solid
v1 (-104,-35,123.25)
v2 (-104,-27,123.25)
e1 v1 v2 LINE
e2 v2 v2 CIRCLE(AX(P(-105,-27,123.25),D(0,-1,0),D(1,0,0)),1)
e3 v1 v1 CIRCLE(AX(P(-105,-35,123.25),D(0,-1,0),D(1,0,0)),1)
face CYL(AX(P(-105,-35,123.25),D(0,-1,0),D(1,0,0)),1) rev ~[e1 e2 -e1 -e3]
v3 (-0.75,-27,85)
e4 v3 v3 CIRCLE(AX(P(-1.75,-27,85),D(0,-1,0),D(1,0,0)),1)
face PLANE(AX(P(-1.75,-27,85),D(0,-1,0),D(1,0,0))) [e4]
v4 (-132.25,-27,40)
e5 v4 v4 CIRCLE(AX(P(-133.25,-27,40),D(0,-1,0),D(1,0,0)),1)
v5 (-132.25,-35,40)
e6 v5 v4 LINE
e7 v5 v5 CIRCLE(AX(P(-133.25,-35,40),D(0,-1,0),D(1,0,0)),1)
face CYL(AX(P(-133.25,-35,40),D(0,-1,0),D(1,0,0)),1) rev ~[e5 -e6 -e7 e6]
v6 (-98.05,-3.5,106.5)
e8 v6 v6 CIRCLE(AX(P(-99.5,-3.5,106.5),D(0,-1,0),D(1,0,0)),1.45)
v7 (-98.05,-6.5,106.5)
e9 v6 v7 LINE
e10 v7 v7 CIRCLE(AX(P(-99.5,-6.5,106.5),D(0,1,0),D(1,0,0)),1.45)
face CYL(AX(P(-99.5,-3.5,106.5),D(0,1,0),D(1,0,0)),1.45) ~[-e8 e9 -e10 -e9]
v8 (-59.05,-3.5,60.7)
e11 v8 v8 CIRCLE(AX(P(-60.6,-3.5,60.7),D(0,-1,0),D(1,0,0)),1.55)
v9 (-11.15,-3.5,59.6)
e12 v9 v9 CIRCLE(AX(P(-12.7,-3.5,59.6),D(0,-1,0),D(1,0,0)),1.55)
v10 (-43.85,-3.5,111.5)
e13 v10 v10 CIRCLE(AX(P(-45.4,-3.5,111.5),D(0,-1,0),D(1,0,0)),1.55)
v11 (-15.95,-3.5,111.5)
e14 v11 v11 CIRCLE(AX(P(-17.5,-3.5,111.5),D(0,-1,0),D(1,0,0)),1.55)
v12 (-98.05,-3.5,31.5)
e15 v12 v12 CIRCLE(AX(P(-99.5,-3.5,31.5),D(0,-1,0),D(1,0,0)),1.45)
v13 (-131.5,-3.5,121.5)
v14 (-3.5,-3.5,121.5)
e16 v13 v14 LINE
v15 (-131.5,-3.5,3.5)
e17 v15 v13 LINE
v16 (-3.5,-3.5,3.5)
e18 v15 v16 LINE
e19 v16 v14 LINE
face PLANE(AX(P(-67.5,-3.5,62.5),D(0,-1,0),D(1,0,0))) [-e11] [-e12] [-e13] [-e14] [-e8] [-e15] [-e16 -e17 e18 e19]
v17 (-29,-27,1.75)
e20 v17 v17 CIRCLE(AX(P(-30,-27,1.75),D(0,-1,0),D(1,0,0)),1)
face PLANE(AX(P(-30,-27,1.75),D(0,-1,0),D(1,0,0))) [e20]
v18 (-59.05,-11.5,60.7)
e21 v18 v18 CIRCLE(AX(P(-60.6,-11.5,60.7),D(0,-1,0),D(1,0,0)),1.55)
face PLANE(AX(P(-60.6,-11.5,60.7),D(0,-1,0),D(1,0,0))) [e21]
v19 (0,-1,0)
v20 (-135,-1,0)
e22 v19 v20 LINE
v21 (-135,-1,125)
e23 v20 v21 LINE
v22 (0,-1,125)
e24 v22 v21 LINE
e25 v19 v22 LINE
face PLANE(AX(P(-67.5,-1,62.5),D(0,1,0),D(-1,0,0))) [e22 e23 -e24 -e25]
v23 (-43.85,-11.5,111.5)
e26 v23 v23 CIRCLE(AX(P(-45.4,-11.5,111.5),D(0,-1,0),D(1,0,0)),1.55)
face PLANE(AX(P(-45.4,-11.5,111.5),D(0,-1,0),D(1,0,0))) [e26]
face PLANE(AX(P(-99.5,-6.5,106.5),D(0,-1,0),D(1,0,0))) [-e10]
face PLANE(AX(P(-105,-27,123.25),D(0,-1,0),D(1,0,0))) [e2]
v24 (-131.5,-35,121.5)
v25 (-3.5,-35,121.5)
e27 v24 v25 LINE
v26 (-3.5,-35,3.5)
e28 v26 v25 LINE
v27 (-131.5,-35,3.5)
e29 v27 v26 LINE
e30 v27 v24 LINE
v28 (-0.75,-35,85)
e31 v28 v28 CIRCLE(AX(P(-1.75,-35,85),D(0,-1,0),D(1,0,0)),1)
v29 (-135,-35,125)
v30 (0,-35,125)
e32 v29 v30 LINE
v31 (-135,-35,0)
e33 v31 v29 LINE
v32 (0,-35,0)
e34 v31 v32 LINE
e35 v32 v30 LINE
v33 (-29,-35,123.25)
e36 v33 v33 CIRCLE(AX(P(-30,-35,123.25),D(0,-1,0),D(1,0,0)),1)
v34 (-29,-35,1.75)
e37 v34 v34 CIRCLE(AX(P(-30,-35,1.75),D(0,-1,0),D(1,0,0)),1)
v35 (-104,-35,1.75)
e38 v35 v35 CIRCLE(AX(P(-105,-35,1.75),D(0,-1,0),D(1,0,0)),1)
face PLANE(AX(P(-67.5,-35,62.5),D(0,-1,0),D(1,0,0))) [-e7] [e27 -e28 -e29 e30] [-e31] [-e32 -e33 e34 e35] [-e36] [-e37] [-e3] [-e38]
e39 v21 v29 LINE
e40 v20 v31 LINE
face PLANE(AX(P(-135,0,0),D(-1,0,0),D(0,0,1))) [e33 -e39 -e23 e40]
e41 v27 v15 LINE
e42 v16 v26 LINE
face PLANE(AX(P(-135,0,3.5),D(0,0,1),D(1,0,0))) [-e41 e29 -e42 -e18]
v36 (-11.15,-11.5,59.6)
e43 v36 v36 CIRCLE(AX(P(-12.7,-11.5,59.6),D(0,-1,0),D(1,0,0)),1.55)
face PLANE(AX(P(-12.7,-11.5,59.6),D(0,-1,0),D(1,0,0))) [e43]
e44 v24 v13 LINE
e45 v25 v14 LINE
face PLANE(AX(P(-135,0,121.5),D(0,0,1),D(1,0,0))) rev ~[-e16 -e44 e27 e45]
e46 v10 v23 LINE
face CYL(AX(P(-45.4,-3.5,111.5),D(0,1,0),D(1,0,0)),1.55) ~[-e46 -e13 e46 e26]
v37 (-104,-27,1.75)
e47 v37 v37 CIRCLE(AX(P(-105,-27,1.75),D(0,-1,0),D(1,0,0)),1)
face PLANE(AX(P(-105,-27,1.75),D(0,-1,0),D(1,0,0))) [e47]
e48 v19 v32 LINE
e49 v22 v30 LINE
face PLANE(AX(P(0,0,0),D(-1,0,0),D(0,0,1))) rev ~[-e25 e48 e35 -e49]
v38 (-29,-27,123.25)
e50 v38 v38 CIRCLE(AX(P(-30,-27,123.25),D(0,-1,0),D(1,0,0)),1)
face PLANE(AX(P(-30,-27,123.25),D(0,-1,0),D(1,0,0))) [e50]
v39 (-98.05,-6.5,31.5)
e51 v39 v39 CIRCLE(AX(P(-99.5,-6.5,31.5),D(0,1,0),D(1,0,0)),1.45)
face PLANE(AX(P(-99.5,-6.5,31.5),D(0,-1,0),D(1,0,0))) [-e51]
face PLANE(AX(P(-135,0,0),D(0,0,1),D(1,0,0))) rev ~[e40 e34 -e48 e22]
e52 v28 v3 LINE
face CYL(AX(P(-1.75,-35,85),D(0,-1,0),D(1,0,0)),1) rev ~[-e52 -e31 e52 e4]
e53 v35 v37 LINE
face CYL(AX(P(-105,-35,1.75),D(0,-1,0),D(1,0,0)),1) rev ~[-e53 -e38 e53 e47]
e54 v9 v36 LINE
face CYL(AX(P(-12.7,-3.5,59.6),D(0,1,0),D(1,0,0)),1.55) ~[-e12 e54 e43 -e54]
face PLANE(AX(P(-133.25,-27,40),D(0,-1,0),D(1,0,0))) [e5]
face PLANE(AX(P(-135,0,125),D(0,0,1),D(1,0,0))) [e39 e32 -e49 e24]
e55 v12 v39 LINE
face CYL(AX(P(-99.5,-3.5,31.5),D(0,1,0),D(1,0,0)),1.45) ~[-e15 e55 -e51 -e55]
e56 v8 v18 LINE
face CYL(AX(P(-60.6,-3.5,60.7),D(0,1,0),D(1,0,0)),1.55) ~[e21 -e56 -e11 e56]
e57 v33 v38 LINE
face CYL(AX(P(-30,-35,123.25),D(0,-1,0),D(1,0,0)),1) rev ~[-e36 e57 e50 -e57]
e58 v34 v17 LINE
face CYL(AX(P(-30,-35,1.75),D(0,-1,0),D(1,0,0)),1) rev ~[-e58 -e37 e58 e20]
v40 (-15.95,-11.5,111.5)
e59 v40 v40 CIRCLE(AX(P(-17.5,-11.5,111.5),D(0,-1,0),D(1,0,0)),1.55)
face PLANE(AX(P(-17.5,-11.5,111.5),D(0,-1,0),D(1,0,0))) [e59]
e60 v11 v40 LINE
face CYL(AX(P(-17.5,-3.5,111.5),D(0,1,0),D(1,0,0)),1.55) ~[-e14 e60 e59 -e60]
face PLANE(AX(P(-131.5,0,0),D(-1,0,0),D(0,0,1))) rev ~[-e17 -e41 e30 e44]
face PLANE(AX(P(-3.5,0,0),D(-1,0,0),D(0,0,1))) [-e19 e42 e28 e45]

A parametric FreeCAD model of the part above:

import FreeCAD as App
import Part
import Sketcher
from FreeCAD import Vector


def faces_at(feature, points):
    """Names of the faces that lie closest to the given points."""
    faces = feature.Shape.Faces
    near = lambda p: min(range(len(faces)), key=lambda i: faces[i].distToShape(Part.Vertex(*p))[0])
    return sorted({f"Face{near(p) + 1}" for p in points})


def add_polygon(sketch, points):
    """Adds a closed chain of lines whose ends are joined by coincident constraints."""
    first, n = sketch.GeometryCount, len(points)
    for a, b in zip(points, points[1:] + points[:1]):
        sketch.addGeometry(Part.LineSegment(App.Vector(*a, 0), App.Vector(*b, 0)), False)
    for i in range(n):
        sketch.addConstraint(Sketcher.Constraint("Coincident", first + i, 2, first + (i + 1) % n, 1))

doc = App.newDocument("Part")
params = doc.addObject("Spreadsheet::Sheet", "Params")
for row, (alias, value) in enumerate([
    ("sketch1_width", "135 mm"),
    ("sketch1_height", "125 mm"),
    ("pad1_length", "35 mm"),
    ("thickness_wall", "3.5 mm"),
    ("sketch2_diameter", "2.9 mm"),
    ("sketch2_diameter2", "3.1 mm"),
    ("pad2_length", "8 mm"),
    ("sketch3_diameter", "2 mm"),
    ("pocket1_length", "8 mm"),
    ("sketch4_width", "135 mm"),
    ("sketch4_height", "125 mm"),
    ("pocket2_length", "1 mm"),
    ("pocket3_length", "5 mm"),
    ("pocket4_length", "5 mm"),
], start=1):
    params.set(f"A{row}", alias)
    params.set(f"B{row}", "=" + value)
    params.setAlias(f"B{row}", alias)

body = doc.addObject("PartDesign::Body", "Body")

# Sketch on XZ plane
sketch1 = body.newObject("Sketcher::SketchObject", "Sketch")
sketch1.AttachmentSupport = (doc.getObject("XZ_Plane"), [""])
sketch1.MapMode = "FlatFace"
add_polygon(sketch1, [(-135, 125), (-135, 0), (0, 0), (0, 125)])  # lines 0-3
sketch1.addConstraint(Sketcher.Constraint("Vertical", 0))
sketch1.addConstraint(Sketcher.Constraint("Horizontal", 1))
sketch1.addConstraint(Sketcher.Constraint("Vertical", 2))
sketch1.addConstraint(Sketcher.Constraint("Horizontal", 3))
sketch1.addConstraint(Sketcher.Constraint("Coincident", 1, 2, -1, 1))
sketch1.addConstraint(Sketcher.Constraint("DistanceX", 1, 1, 1, 2, 135.0))
sketch1.addConstraint(Sketcher.Constraint("DistanceY", 0, 2, 0, 1, 125.0))
sketch1.setExpression("Constraints[9]", "Params.sketch1_width")
sketch1.setExpression("Constraints[10]", "Params.sketch1_height")
pad1 = body.newObject("PartDesign::Pad", "Pad")
pad1.Profile = sketch1
pad1.setExpression("Length", "Params.pad1_length")
doc.recompute()

thickness = body.newObject("PartDesign::Thickness", "Thickness")
thickness.Base = (pad1, faces_at(pad1, [(-67.5, -35, 62.5)]))
thickness.setExpression("Value", "Params.thickness_wall")
thickness.Reversed = True
thickness.Join = "Arc"

# Sketch on XZ plane
sketch2 = body.newObject("Sketcher::SketchObject", "Sketch001")
sketch2.AttachmentSupport = (doc.getObject("XZ_Plane"), [""])
sketch2.MapMode = "FlatFace"
sketch2.AttachmentOffset = App.Placement(Vector(0, 0, 3.5), App.Rotation())
sketch2.addGeometry(Part.Circle(Vector(-99.5, 106.5, 0), Vector(0, 0, 1), 1.4), False)
sketch2.addGeometry(Part.Circle(Vector(-99.5, 31.5, 0), Vector(0, 0, 1), 1.4), False)
sketch2.addGeometry(Part.Circle(Vector(-45.4, 111.5, 0), Vector(0, 0, 1), 1.6), False)
sketch2.addGeometry(Part.Circle(Vector(-17.5, 111.5, 0), Vector(0, 0, 1), 1.6), False)
sketch2.addGeometry(Part.Circle(Vector(-12.7, 59.6, 0), Vector(0, 0, 1), 1.6), False)
sketch2.addGeometry(Part.Circle(Vector(-60.6, 60.7, 0), Vector(0, 0, 1), 1.6), False)
sketch2.addConstraint(Sketcher.Constraint("Equal", 0, 1))
sketch2.addConstraint(Sketcher.Constraint("Equal", 2, 3))
sketch2.addConstraint(Sketcher.Constraint("Equal", 3, 4))
sketch2.addConstraint(Sketcher.Constraint("Equal", 4, 5))
sketch2.addConstraint(Sketcher.Constraint("Horizontal", 2, 3, 3, 3))
sketch2.addConstraint(Sketcher.Constraint("Vertical", 0, 3, 1, 3))
sketch2.addConstraint(Sketcher.Constraint("Diameter", 0, 2.9))
sketch2.addConstraint(Sketcher.Constraint("Diameter", 2, 3.1))
sketch2.addConstraint(Sketcher.Constraint("DistanceY", 1, 3, 0, 3, 75.0))
sketch2.addConstraint(Sketcher.Constraint("DistanceY", 0, 3, 2, 3, 5.0))
sketch2.addConstraint(Sketcher.Constraint("DistanceX", 0, 3, 3, 3, 82.0))
sketch2.addConstraint(Sketcher.Constraint("DistanceX", 0, 3, -1, 1, 99.5))
sketch2.addConstraint(Sketcher.Constraint("DistanceY", -1, 1, 0, 3, 106.5))
sketch2.addConstraint(Sketcher.Constraint("DistanceX", 2, 3, -1, 1, 45.4))
sketch2.addConstraint(Sketcher.Constraint("DistanceX", 4, 3, -1, 1, 12.7))
sketch2.addConstraint(Sketcher.Constraint("DistanceY", -1, 1, 4, 3, 59.6))
sketch2.addConstraint(Sketcher.Constraint("DistanceX", 5, 3, -1, 1, 60.6))
sketch2.addConstraint(Sketcher.Constraint("DistanceY", -1, 1, 5, 3, 60.7))
sketch2.setExpression("Constraints[6]", "Params.sketch2_diameter")
sketch2.setExpression("Constraints[7]", "Params.sketch2_diameter2")
pad2 = body.newObject("PartDesign::Pad", "Pad001")
pad2.Profile = sketch2
pad2.setExpression("Length", "Params.pad2_length")

# Sketch on XZ plane
sketch3 = body.newObject("Sketcher::SketchObject", "Sketch002")
sketch3.AttachmentSupport = (doc.getObject("XZ_Plane"), [""])
sketch3.MapMode = "FlatFace"
sketch3.AttachmentOffset = App.Placement(Vector(0, 0, 35), App.Rotation())
sketch3.addGeometry(Part.Circle(Vector(-30, 123.2, 0), Vector(0, 0, 1), 1), False)
sketch3.addGeometry(Part.Circle(Vector(-1.8, 85, 0), Vector(0, 0, 1), 1), False)
sketch3.addGeometry(Part.Circle(Vector(-30, 1.8, 0), Vector(0, 0, 1), 1), False)
sketch3.addGeometry(Part.Circle(Vector(-105, 1.8, 0), Vector(0, 0, 1), 1), False)
sketch3.addGeometry(Part.Circle(Vector(-133.2, 40, 0), Vector(0, 0, 1), 1), False)
sketch3.addGeometry(Part.Circle(Vector(-105, 123.2, 0), Vector(0, 0, 1), 1), False)
sketch3.addConstraint(Sketcher.Constraint("Equal", 0, 1))
sketch3.addConstraint(Sketcher.Constraint("Equal", 1, 2))
sketch3.addConstraint(Sketcher.Constraint("Equal", 2, 3))
sketch3.addConstraint(Sketcher.Constraint("Equal", 3, 4))
sketch3.addConstraint(Sketcher.Constraint("Equal", 4, 5))
sketch3.addConstraint(Sketcher.Constraint("Horizontal", 2, 3, 3, 3))
sketch3.addConstraint(Sketcher.Constraint("Horizontal", 0, 3, 5, 3))
sketch3.addConstraint(Sketcher.Constraint("Vertical", 0, 3, 2, 3))
sketch3.addConstraint(Sketcher.Constraint("Vertical", 3, 3, 5, 3))
sketch3.addConstraint(Sketcher.Constraint("Diameter", 0, 2.0))
sketch3.addConstraint(Sketcher.Constraint("DistanceX", 0, 3, -1, 1, 30.0))
sketch3.addConstraint(Sketcher.Constraint("DistanceY", -1, 1, 1, 3, 85.0))
sketch3.addConstraint(Sketcher.Constraint("DistanceX", 3, 3, -1, 1, 105.0))
sketch3.addConstraint(Sketcher.Constraint("DistanceY", -1, 1, 4, 3, 40.0))
sketch3.addConstraint(Sketcher.Constraint("DistanceY", 2, 3, 0, 3, 121.5))
sketch3.addConstraint(Sketcher.Constraint("DistanceX", 4, 3, 1, 3, 131.5))
sketch3.addConstraint(Sketcher.Constraint("DistanceY", -1, 1, 0, 3, 123.25))
sketch3.addConstraint(Sketcher.Constraint("DistanceX", 1, 3, -1, 1, 1.75))
sketch3.setExpression("Constraints[9]", "Params.sketch3_diameter")
pocket1 = body.newObject("PartDesign::Pocket", "Pocket")
pocket1.Profile = sketch3
pocket1.setExpression("Length", "Params.pocket1_length")

# Sketch on XZ plane
sketch4 = body.newObject("Sketcher::SketchObject", "Sketch003")
sketch4.AttachmentSupport = (doc.getObject("XZ_Plane"), [""])
sketch4.MapMode = "FlatFace"
add_polygon(sketch4, [(0, 125), (0, 0), (-135, 0), (-135, 125)])  # lines 0-3
sketch4.addConstraint(Sketcher.Constraint("Vertical", 0))
sketch4.addConstraint(Sketcher.Constraint("Horizontal", 1))
sketch4.addConstraint(Sketcher.Constraint("Vertical", 2))
sketch4.addConstraint(Sketcher.Constraint("Horizontal", 3))
sketch4.addConstraint(Sketcher.Constraint("Coincident", 0, 2, -1, 1))
sketch4.addConstraint(Sketcher.Constraint("DistanceX", 1, 2, 1, 1, 135.0))
sketch4.addConstraint(Sketcher.Constraint("DistanceY", 0, 2, 0, 1, 125.0))
sketch4.setExpression("Constraints[9]", "Params.sketch4_width")
sketch4.setExpression("Constraints[10]", "Params.sketch4_height")
pocket2 = body.newObject("PartDesign::Pocket", "Pocket001")
pocket2.Profile = sketch4
pocket2.setExpression("Length", "Params.pocket2_length")
pocket2.Reversed = True

# Sketch on XZ plane
sketch5 = body.newObject("Sketcher::SketchObject", "Sketch004")
sketch5.AttachmentSupport = (doc.getObject("XZ_Plane"), [""])
sketch5.MapMode = "FlatFace"
sketch5.AttachmentOffset = App.Placement(Vector(0, 0, 11.5), App.Rotation())
sketch5.addGeometry(Part.Circle(Vector(-99.5, 106.5, 0), Vector(0, 0, 1), 1.8), False)
sketch5.addConstraint(Sketcher.Constraint("DistanceX", 0, 3, -1, 1, 99.5))
sketch5.addConstraint(Sketcher.Constraint("DistanceY", -1, 1, 0, 3, 106.5))
sketch5.addConstraint(Sketcher.Constraint("Diameter", 0, 3.660046))
pocket3 = body.newObject("PartDesign::Pocket", "Pocket002")
pocket3.Profile = sketch5
pocket3.setExpression("Length", "Params.pocket3_length")

# Sketch on XZ plane
sketch6 = body.newObject("Sketcher::SketchObject", "Sketch005")
sketch6.AttachmentSupport = (doc.getObject("XZ_Plane"), [""])
sketch6.MapMode = "FlatFace"
sketch6.AttachmentOffset = App.Placement(Vector(0, 0, 11.5), App.Rotation())
sketch6.addGeometry(Part.Circle(Vector(-99.5, 31.5, 0), Vector(0, 0, 1), 2.8), False)
sketch6.addConstraint(Sketcher.Constraint("DistanceX", 0, 3, -1, 1, 99.5))
sketch6.addConstraint(Sketcher.Constraint("DistanceY", -1, 1, 0, 3, 31.5))
sketch6.addConstraint(Sketcher.Constraint("Diameter", 0, 5.570776))
pocket4 = body.newObject("PartDesign::Pocket", "Pocket003")
pocket4.Profile = sketch6
pocket4.setExpression("Length", "Params.pocket4_length")

doc.recompute()
